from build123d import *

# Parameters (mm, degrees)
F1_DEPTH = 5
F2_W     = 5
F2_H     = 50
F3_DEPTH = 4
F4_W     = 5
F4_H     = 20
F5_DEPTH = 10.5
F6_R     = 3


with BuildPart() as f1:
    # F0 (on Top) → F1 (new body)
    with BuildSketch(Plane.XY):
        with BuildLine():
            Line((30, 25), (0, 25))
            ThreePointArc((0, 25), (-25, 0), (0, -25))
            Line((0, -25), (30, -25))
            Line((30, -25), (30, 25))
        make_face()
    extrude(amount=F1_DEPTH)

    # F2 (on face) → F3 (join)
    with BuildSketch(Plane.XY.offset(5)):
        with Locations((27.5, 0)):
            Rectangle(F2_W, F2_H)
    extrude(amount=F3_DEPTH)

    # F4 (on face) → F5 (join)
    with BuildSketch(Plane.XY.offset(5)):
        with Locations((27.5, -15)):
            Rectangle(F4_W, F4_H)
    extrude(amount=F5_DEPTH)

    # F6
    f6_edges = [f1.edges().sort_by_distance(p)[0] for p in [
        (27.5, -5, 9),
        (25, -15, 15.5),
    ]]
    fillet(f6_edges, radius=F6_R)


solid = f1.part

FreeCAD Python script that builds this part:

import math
import FreeCAD as App
import Part
import Sketcher
from FreeCAD import Vector
Q = App.Units.Quantity


def edges_at(feature, points):
    """Names of the edges that pass closest to the given points."""
    edges = feature.Shape.Edges
    near = lambda p: min(range(len(edges)), key=lambda i: edges[i].distToShape(Part.Vertex(*p))[0])
    return sorted({f"Edge{near(p) + 1}" for p in points})

doc = App.newDocument("Part")
body = doc.addObject("PartDesign::Body", "Body")

# Sketch on XY plane
sketch1 = doc.addObject("Sketcher::SketchObject", "Sketch")
body.addObject(sketch1)
sketch1.AttachmentSupport = (doc.XY_Plane, [""])
sketch1.MapMode = "FlatFace"
sketch1.addGeometry([
    Part.LineSegment(Vector(30, 25, 0), Vector(0, 25, 0)),
    Part.ArcOfCircle(Part.Circle(Vector(0, 0, 0), Vector(0, 0, 1), 25), math.radians(90), math.radians(270)),
    Part.LineSegment(Vector(0, -25, 0), Vector(30, -25, 0)),
    Part.LineSegment(Vector(30, -25, 0), Vector(30, 25, 0)),
], False)
sketch1.addConstraint([
    Sketcher.Constraint("Tangent", 0, 2, 1, 1),
    Sketcher.Constraint("Tangent", 1, 2, 2, 1),
    Sketcher.Constraint("Coincident", 2, 2, 3, 1),
    Sketcher.Constraint("Coincident", 3, 2, 0, 1),
    Sketcher.Constraint("Horizontal", 0),
    Sketcher.Constraint("Horizontal", 2),
    Sketcher.Constraint("Vertical", 3),
    Sketcher.Constraint("Coincident", 1, 3, -1, 1),
    Sketcher.Constraint("Radius", 1, Q("25 mm")),
    Sketcher.Constraint("DistanceX", 0, 2, 0, 1, Q("30 mm")),
])
pad1 = doc.addObject("PartDesign::Pad", "Pad")
body.addObject(pad1)
pad1.Profile = sketch1
pad1.Length = 5

# Sketch on XY plane
sketch2 = doc.addObject("Sketcher::SketchObject", "Sketch001")
body.addObject(sketch2)
sketch2.AttachmentSupport = (doc.XY_Plane, [""])
sketch2.MapMode = "FlatFace"
sketch2.AttachmentOffset = App.Placement(Vector(0, 0, 5), App.Rotation())
sketch2.addGeometry([
    Part.LineSegment(Vector(25, 25, 0), Vector(25, -25, 0)),
    Part.LineSegment(Vector(25, -25, 0), Vector(30, -25, 0)),
    Part.LineSegment(Vector(30, -25, 0), Vector(30, 25, 0)),
    Part.LineSegment(Vector(30, 25, 0), Vector(25, 25, 0)),
], False)
sketch2.addConstraint([
    Sketcher.Constraint("Coincident", 0, 2, 1, 1),
    Sketcher.Constraint("Coincident", 1, 2, 2, 1),
    Sketcher.Constraint("Coincident", 2, 2, 3, 1),
    Sketcher.Constraint("Coincident", 3, 2, 0, 1),
    Sketcher.Constraint("Vertical", 0),
    Sketcher.Constraint("Horizontal", 1),
    Sketcher.Constraint("Vertical", 2),
    Sketcher.Constraint("Horizontal", 3),
    Sketcher.Constraint("DistanceX", 1, 1, 1, 2, Q("5 mm")),
    Sketcher.Constraint("DistanceY", 0, 2, 0, 1, Q("50 mm")),
    Sketcher.Constraint("DistanceX", -1, 1, 0, 2, Q("25 mm")),
    Sketcher.Constraint("DistanceY", 0, 2, -1, 1, Q("25 mm")),
])
pad2 = doc.addObject("PartDesign::Pad", "Pad001")
body.addObject(pad2)
pad2.Profile = sketch2
pad2.Length = 4

# Sketch on XY plane
sketch3 = doc.addObject("Sketcher::SketchObject", "Sketch002")
body.addObject(sketch3)
sketch3.AttachmentSupport = (doc.XY_Plane, [""])
sketch3.MapMode = "FlatFace"
sketch3.AttachmentOffset = App.Placement(Vector(0, 0, 5), App.Rotation())
sketch3.addGeometry([
    Part.LineSegment(Vector(25, -5, 0), Vector(25, -25, 0)),
    Part.LineSegment(Vector(25, -25, 0), Vector(30, -25, 0)),
    Part.LineSegment(Vector(30, -25, 0), Vector(30, -5, 0)),
    Part.LineSegment(Vector(30, -5, 0), Vector(25, -5, 0)),
], False)
sketch3.addConstraint([
    Sketcher.Constraint("Coincident", 0, 2, 1, 1),
    Sketcher.Constraint("Coincident", 1, 2, 2, 1),
    Sketcher.Constraint("Coincident", 2, 2, 3, 1),
    Sketcher.Constraint("Coincident", 3, 2, 0, 1),
    Sketcher.Constraint("Vertical", 0),
    Sketcher.Constraint("Horizontal", 1),
    Sketcher.Constraint("Vertical", 2),
    Sketcher.Constraint("Horizontal", 3),
    Sketcher.Constraint("DistanceX", 1, 1, 1, 2, Q("5 mm")),
    Sketcher.Constraint("DistanceY", 0, 2, 0, 1, Q("20 mm")),
    Sketcher.Constraint("DistanceX", -1, 1, 0, 2, Q("25 mm")),
    Sketcher.Constraint("DistanceY", 0, 2, -1, 1, Q("25 mm")),
])
pad3 = doc.addObject("PartDesign::Pad", "Pad002")
body.addObject(pad3)
pad3.Profile = sketch3
pad3.Length = 10.5
doc.recompute()

fillet = doc.addObject("PartDesign::Fillet", "Fillet")
body.addObject(fillet)
fillet.Base = (pad3, edges_at(pad3, [(27.5, -5, 9), (25, -15, 15.5)]))
fillet.Radius = 3

doc.recompute()
